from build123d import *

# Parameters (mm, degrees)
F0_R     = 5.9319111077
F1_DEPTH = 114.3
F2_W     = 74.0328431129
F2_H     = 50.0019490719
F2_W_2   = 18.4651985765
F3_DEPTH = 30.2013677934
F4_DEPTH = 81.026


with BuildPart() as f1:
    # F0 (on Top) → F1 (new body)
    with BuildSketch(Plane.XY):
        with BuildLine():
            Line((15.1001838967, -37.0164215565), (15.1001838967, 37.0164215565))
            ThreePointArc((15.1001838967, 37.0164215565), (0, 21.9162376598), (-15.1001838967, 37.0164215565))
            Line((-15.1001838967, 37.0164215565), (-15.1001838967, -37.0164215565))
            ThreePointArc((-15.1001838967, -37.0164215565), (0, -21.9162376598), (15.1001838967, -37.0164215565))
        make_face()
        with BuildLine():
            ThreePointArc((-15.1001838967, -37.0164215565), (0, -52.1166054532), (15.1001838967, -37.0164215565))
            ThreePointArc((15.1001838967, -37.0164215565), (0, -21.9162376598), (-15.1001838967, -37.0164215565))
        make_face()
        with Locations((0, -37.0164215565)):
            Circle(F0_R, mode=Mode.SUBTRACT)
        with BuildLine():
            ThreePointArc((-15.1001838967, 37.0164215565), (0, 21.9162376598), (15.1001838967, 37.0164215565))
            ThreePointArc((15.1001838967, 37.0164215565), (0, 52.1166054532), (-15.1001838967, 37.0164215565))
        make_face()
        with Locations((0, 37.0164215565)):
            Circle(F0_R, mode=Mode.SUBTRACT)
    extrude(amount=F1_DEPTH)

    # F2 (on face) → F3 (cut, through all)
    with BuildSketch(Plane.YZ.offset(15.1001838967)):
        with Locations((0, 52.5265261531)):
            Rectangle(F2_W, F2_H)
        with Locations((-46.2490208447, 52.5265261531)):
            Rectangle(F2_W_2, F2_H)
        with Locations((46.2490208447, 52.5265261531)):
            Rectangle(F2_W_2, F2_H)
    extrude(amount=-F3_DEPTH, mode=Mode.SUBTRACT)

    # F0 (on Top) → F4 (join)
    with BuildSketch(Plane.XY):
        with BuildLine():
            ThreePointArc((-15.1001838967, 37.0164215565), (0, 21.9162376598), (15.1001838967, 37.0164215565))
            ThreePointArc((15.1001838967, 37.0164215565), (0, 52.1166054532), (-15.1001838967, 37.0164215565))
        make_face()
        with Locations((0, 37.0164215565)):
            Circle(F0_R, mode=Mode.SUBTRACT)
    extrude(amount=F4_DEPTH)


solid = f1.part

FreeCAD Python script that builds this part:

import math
import FreeCAD as App
import Part
import Sketcher
from FreeCAD import Vector
Q = App.Units.Quantity

doc = App.newDocument("Part")
params = doc.addObject("Spreadsheet::Sheet", "Params")
for row, (alias, value) in enumerate([
    ("pad1_length", "4.5 in"),
    ("pad2_length", "3.19 in"),
], start=1):
    params.set(f"A{row}", alias)
    params.set(f"B{row}", "=" + value)
    params.setAlias(f"B{row}", alias)

body = doc.addObject("PartDesign::Body", "Body")
body.AllowCompound = True

# Sketch on XY plane
sketch1 = body.newObject("Sketcher::SketchObject", "Sketch")
sketch1.AttachmentSupport = (doc.getObject("XY_Plane"), [""])
sketch1.MapMode = "FlatFace"
sketch1.addGeometry([
    Part.LineSegment(Vector(15, -37, 0), Vector(15, 37, 0)),  # 0
    Part.ArcOfCircle(Part.Circle(Vector(0, 37, 0), Vector(0, 0, 1), 15), math.radians(0), math.radians(180)),  # 1
    Part.LineSegment(Vector(-15, 37, 0), Vector(-15, -37, 0)),  # 2
    Part.ArcOfCircle(Part.Circle(Vector(0, -37, 0), Vector(0, 0, 1), 15), math.radians(180), math.radians(360)),  # 3
    Part.Circle(Vector(0, -37, 0), Vector(0, 0, 1), 6),  # 4
    Part.Circle(Vector(0, 37, 0), Vector(0, 0, 1), 6),  # 5
], False)
sketch1.addConstraint([
    Sketcher.Constraint("Tangent", 0, 2, 1, 1),
    Sketcher.Constraint("Tangent", 1, 2, 2, 1),
    Sketcher.Constraint("Tangent", 2, 2, 3, 1),
    Sketcher.Constraint("Tangent", 3, 2, 0, 1),
    Sketcher.Constraint("Vertical", 0),
    Sketcher.Constraint("Vertical", 2),
    Sketcher.Constraint("Coincident", 4, 3, 3, 3),
    Sketcher.Constraint("Coincident", 5, 3, 1, 3),
    Sketcher.Constraint("Equal", 4, 5),
    Sketcher.Constraint("Symmetric", 1, 3, 3, 3, -1, 1),
    Sketcher.Constraint("Diameter", 4, Q("11.863822 mm")),
    Sketcher.Constraint("Radius", 1, Q("15.100184 mm")),
    Sketcher.Constraint("DistanceY", 0, 1, 0, 2, Q("74.032843 mm")),
])
pad1 = body.newObject("PartDesign::Pad", "Pad")
pad1.Profile = sketch1
pad1.setExpression("Length", "Params.pad1_length")

# Sketch on YZ plane
sketch2 = body.newObject("Sketcher::SketchObject", "Sketch001")
sketch2.AttachmentSupport = (doc.getObject("YZ_Plane"), [""])
sketch2.MapMode = "FlatFace"
sketch2.AttachmentOffset = App.Placement(Vector(0, 0, 15.100184), App.Rotation())
sketch2.addGeometry([
    Part.LineSegment(Vector(-55, 78, 0), Vector(-55, 28, 0)),
    Part.LineSegment(Vector(-55, 28, 0), Vector(55, 28, 0)),
    Part.LineSegment(Vector(55, 28, 0), Vector(55, 78, 0)),
    Part.LineSegment(Vector(55, 78, 0), Vector(-55, 78, 0)),
], False)
sketch2.addConstraint([
    Sketcher.Constraint("Coincident", 0, 2, 1, 1),
    Sketcher.Constraint("Coincident", 1, 2, 2, 1),
    Sketcher.Constraint("Coincident", 2, 2, 3, 1),
    Sketcher.Constraint("Coincident", 3, 2, 0, 1),
    Sketcher.Constraint("Vertical", 0),
    Sketcher.Constraint("Horizontal", 1),
    Sketcher.Constraint("Vertical", 2),
    Sketcher.Constraint("Horizontal", 3),
    Sketcher.Constraint("DistanceX", 1, 1, 1, 2, Q("110.96324 mm")),
    Sketcher.Constraint("DistanceY", 0, 2, 0, 1, Q("50.001949 mm")),
    Sketcher.Constraint("DistanceY", -1, 1, 2, 2, Q("77.527501 mm")),
    Sketcher.Constraint("DistanceX", 0, 2, -1, 1, Q("55.48162 mm")),
])
pocket1 = body.newObject("PartDesign::Pocket", "Pocket")
pocket1.Profile = sketch2
pocket1.Type = "ThroughAll"

# Sketch on XY plane
sketch3 = body.newObject("Sketcher::SketchObject", "Sketch002")
sketch3.AttachmentSupport = (doc.getObject("XY_Plane"), [""])
sketch3.MapMode = "FlatFace"
sketch3.addGeometry([
    Part.Circle(Vector(0, 37, 0), Vector(0, 0, 1), 15),
    Part.Circle(Vector(0, 37, 0), Vector(0, 0, 1), 6),
], False)
sketch3.addConstraint([
    Sketcher.Constraint("Coincident", 1, 3, 0, 3),
    Sketcher.Constraint("PointOnObject", 0, 3, -2),
    Sketcher.Constraint("Diameter", 0, Q("30.200368 mm")),
    Sketcher.Constraint("Diameter", 1, Q("11.863822 mm")),
    Sketcher.Constraint("DistanceY", -1, 1, 0, 3, Q("37.016422 mm")),
])
pad2 = body.newObject("PartDesign::Pad", "Pad001")
pad2.Profile = sketch3
pad2.setExpression("Length", "Params.pad2_length")

doc.recompute()
